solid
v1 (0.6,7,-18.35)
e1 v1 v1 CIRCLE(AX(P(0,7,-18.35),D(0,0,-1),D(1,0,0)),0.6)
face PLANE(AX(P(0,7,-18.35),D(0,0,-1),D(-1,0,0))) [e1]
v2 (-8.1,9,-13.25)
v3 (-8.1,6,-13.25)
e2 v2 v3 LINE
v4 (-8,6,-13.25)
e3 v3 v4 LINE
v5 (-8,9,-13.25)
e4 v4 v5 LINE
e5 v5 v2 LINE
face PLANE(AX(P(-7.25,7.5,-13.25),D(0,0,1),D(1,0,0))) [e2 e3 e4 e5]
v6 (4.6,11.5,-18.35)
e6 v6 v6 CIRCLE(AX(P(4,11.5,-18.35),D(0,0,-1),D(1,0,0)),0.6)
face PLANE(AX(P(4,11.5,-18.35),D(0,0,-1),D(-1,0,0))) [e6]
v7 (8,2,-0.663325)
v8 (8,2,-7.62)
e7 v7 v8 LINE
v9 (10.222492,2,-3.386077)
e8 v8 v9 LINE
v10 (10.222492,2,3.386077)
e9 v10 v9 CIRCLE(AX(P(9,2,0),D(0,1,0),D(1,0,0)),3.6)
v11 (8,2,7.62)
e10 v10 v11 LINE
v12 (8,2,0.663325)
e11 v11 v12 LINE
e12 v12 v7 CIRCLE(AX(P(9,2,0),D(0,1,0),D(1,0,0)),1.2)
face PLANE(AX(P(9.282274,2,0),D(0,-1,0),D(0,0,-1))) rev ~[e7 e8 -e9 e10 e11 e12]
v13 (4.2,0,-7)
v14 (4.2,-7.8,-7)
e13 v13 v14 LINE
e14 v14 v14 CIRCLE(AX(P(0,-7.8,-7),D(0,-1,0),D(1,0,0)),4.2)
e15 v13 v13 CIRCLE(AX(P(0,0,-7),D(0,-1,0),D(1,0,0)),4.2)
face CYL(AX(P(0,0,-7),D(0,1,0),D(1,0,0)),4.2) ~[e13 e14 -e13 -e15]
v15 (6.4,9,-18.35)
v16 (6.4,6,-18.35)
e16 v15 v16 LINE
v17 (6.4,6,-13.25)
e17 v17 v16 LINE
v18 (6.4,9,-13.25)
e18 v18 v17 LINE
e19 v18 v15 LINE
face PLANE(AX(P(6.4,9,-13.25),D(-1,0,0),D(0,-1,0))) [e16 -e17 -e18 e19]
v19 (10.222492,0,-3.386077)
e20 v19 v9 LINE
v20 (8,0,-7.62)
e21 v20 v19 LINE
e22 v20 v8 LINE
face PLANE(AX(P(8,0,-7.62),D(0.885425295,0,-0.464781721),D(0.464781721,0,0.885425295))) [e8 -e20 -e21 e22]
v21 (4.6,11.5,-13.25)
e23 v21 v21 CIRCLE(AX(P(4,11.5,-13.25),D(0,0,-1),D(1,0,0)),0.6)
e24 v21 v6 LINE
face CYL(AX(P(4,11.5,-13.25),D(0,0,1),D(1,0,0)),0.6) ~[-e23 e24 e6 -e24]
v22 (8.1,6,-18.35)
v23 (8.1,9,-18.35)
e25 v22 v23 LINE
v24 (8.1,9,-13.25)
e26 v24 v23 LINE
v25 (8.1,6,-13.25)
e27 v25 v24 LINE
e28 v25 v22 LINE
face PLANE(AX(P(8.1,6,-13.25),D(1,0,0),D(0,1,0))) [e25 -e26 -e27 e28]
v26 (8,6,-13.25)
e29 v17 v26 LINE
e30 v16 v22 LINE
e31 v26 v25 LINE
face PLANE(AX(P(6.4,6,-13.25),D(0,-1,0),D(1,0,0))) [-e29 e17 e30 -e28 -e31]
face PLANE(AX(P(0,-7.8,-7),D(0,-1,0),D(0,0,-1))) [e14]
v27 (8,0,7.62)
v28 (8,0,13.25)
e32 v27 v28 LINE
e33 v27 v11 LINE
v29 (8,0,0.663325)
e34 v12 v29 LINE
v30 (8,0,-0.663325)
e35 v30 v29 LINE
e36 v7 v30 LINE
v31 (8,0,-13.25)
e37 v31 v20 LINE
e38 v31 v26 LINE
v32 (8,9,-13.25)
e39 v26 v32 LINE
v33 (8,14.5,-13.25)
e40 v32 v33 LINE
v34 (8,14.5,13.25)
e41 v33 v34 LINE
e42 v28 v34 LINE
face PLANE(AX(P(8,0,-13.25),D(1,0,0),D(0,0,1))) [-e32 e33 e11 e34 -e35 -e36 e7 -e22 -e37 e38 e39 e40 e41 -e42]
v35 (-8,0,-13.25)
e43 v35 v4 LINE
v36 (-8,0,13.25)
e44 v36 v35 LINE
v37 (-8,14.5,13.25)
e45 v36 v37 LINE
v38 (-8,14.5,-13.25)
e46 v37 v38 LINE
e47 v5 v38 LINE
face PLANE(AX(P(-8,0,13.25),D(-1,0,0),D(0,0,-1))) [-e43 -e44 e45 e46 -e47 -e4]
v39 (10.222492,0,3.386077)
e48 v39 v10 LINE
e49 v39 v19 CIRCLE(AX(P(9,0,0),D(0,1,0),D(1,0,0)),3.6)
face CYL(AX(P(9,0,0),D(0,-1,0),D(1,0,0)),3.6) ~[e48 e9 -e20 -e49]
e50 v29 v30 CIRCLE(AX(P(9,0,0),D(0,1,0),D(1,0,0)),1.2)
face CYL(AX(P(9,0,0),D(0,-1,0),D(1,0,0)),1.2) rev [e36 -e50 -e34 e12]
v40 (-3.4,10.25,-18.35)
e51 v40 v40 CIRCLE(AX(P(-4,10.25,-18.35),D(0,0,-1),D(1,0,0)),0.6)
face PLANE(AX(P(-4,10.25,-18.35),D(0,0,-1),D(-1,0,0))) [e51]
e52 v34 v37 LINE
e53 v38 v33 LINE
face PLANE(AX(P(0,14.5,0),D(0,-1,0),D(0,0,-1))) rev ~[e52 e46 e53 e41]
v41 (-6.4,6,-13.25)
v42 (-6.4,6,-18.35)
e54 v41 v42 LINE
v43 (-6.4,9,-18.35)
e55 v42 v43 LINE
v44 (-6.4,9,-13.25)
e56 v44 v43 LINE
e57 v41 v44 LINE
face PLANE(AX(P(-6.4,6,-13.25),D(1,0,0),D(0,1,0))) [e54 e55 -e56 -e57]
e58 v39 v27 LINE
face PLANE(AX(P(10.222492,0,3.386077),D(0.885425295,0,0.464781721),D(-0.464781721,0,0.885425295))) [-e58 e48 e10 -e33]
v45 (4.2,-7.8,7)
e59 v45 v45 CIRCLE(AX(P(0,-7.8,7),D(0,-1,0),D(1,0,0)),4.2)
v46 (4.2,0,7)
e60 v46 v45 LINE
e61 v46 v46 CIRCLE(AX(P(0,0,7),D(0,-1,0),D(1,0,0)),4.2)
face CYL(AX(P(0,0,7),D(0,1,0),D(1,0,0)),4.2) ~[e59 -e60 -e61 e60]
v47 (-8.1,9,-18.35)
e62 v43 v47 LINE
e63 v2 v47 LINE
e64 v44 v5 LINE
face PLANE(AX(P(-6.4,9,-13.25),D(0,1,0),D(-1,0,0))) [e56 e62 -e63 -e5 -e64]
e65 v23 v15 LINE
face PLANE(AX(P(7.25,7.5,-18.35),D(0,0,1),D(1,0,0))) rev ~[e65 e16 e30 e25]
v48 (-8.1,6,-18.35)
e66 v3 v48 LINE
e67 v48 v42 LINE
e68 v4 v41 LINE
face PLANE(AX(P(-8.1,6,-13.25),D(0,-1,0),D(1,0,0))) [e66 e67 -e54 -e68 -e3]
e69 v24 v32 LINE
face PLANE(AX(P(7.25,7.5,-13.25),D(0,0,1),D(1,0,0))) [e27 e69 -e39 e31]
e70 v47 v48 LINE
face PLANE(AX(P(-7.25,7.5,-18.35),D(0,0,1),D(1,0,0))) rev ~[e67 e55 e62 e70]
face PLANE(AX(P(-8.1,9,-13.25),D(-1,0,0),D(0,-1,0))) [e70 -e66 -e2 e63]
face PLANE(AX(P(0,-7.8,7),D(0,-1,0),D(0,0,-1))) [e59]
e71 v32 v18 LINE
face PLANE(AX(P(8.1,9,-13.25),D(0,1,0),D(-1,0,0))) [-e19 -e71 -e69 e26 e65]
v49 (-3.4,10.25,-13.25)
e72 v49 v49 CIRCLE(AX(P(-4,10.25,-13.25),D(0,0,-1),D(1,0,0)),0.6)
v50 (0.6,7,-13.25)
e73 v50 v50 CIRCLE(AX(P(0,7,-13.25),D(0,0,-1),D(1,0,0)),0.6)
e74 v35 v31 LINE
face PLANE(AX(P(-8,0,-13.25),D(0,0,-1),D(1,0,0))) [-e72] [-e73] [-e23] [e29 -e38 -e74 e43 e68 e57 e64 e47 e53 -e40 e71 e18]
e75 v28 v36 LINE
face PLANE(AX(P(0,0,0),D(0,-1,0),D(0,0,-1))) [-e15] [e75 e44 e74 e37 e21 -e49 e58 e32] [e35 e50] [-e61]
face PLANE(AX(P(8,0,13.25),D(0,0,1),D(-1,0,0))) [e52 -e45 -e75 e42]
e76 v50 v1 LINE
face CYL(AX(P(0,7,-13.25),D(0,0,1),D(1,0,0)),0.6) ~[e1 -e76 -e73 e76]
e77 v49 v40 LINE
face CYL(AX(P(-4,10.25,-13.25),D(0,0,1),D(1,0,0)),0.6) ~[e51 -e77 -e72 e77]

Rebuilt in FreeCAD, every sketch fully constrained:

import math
import FreeCAD as App
import Part
import Sketcher
from FreeCAD import Vector
Q = App.Units.Quantity


def add_polygon(sketch, points):
    """Adds a closed chain of lines whose ends are joined by coincident constraints."""
    first, n = sketch.GeometryCount, len(points)
    for a, b in zip(points, points[1:] + points[:1]):
        sketch.addGeometry(Part.LineSegment(App.Vector(*a, 0), App.Vector(*b, 0)), False)
    for i in range(n):
        sketch.addConstraint(Sketcher.Constraint("Coincident", first + i, 2, first + (i + 1) % n, 1))

doc = App.newDocument("Part")
body = doc.addObject("PartDesign::Body", "Body")
body.AllowCompound = True

sketch1 = body.newObject("Sketcher::SketchObject", "Sketch")
sketch1.AttachmentSupport = (doc.getObject("XZ_Plane"), [""])
sketch1.MapMode = "FlatFace"
sketch1.addGeometry(Part.Circle(Vector(0, -7, 0), Vector(0, 0, 1), 4.2), False)
sketch1.addGeometry(Part.Circle(Vector(0, 7, 0), Vector(0, 0, 1), 4.2), False)
sketch1.addConstraint(Sketcher.Constraint("Equal", 0, 1))
sketch1.addConstraint(Sketcher.Constraint("Symmetric", 0, 3, 1, 3, -1, 1))
sketch1.addConstraint(Sketcher.Constraint("PointOnObject", 0, 3, -2))
sketch1.addConstraint(Sketcher.Constraint("Diameter", 0, Q("8.4 mm")))
sketch1.addConstraint(Sketcher.Constraint("DistanceY", 0, 3, -1, 1, Q("7 mm")))
pad1 = body.newObject("PartDesign::Pad", "Pad")
pad1.Profile = sketch1
pad1.Length = 7.8

sketch2 = body.newObject("Sketcher::SketchObject", "Sketch001")
sketch2.AttachmentSupport = (doc.getObject("XZ_Plane"), [""])
sketch2.MapMode = "FlatFace"
add_polygon(sketch2, [(8, -13), (-8, -13), (-8, 13), (8, 13)])
sketch2.addConstraint(Sketcher.Constraint("Horizontal", 0))
sketch2.addConstraint(Sketcher.Constraint("Vertical", 1))
sketch2.addConstraint(Sketcher.Constraint("Horizontal", 2))
sketch2.addConstraint(Sketcher.Constraint("Vertical", 3))
sketch2.addConstraint(Sketcher.Constraint("Symmetric", 0, 2, 2, 2, -1, 1))
sketch2.addConstraint(Sketcher.Constraint("DistanceX", 0, 2, 0, 1, Q("16 mm")))
sketch2.addConstraint(Sketcher.Constraint("DistanceY", 1, 1, 1, 2, Q("26.5 mm")))
pad2 = body.newObject("PartDesign::Pad", "Pad001")
pad2.Profile = sketch2
pad2.Length = 14.5
pad2.Reversed = True

sketch3 = body.newObject("Sketcher::SketchObject", "Sketch002")
sketch3.AttachmentSupport = (doc.getObject("XY_Plane"), [""])
sketch3.MapMode = "FlatFace"
sketch3.AttachmentOffset = App.Placement(Vector(0, 0, -13.25), App.Rotation())
add_polygon(sketch3, [(-6.4, 9), (-6.4, 6), (-8.1, 6), (-8.1, 9)])
sketch3.addGeometry(Part.Circle(Vector(4, 11.5, 0), Vector(0, 0, 1), 0.6), False)
sketch3.addGeometry(Part.Circle(Vector(-4, 10.2, 0), Vector(0, 0, 1), 0.6), False)
sketch3.addGeometry(Part.Circle(Vector(0, 7, 0), Vector(0, 0, 1), 0.6), False)
add_polygon(sketch3, [(8.1, 6), (6.4, 6), (6.4, 9), (8.1, 9)])
sketch3.addConstraint(Sketcher.Constraint("Vertical", 0))
sketch3.addConstraint(Sketcher.Constraint("Horizontal", 1))
sketch3.addConstraint(Sketcher.Constraint("Vertical", 2))
sketch3.addConstraint(Sketcher.Constraint("Horizontal", 3))
sketch3.addConstraint(Sketcher.Constraint("Horizontal", 7))
sketch3.addConstraint(Sketcher.Constraint("Vertical", 8))
sketch3.addConstraint(Sketcher.Constraint("Horizontal", 9))
sketch3.addConstraint(Sketcher.Constraint("Vertical", 10))
sketch3.addConstraint(Sketcher.Constraint("Equal", 4, 5))
sketch3.addConstraint(Sketcher.Constraint("Equal", 5, 6))
sketch3.addConstraint(Sketcher.Constraint("Symmetric", 0, 2, 7, 2, -2))
sketch3.addConstraint(Sketcher.Constraint("Symmetric", 2, 2, 9, 2, -2))
sketch3.addConstraint(Sketcher.Constraint("PointOnObject", 6, 3, -2))
sketch3.addConstraint(Sketcher.Constraint("Diameter", 4, Q("1.2 mm")))
sketch3.addConstraint(Sketcher.Constraint("DistanceY", 0, 2, 0, 1, Q("3 mm")))
sketch3.addConstraint(Sketcher.Constraint("DistanceX", 1, 2, 1, 1, Q("1.7 mm")))
sketch3.addConstraint(Sketcher.Constraint("DistanceX", -1, 1, 4, 3, Q("4 mm")))
sketch3.addConstraint(Sketcher.Constraint("DistanceX", 5, 3, -1, 1, Q("4 mm")))
sketch3.addConstraint(Sketcher.Constraint("DistanceY", -1, 1, 6, 3, Q("7 mm")))
sketch3.addConstraint(Sketcher.Constraint("DistanceY", -1, 1, 0, 2, Q("6 mm")))
sketch3.addConstraint(Sketcher.Constraint("DistanceY", -1, 1, 4, 3, Q("11.5 mm")))
sketch3.addConstraint(Sketcher.Constraint("DistanceX", 0, 2, -1, 1, Q("6.4 mm")))
sketch3.addConstraint(Sketcher.Constraint("DistanceY", -1, 1, 5, 3, Q("10.25 mm")))
pad3 = body.newObject("PartDesign::Pad", "Pad002")
pad3.Profile = sketch3
pad3.Length = 5.1
pad3.Reversed = True

sketch4 = body.newObject("Sketcher::SketchObject", "Sketch003")
sketch4.AttachmentSupport = (doc.getObject("XZ_Plane"), [""])
sketch4.MapMode = "FlatFace"
sketch4.addGeometry(Part.ArcOfCircle(Part.Circle(Vector(9, 0, 0), Vector(0, 0, 1), 1.2), math.radians(-146), math.radians(146)), False)
sketch4.addGeometry(Part.LineSegment(Vector(8, -0.7, 0), Vector(8, -7.6, 0)), False)
sketch4.addGeometry(Part.LineSegment(Vector(8, -7.6, 0), Vector(10.2, -3.4, 0)), False)
sketch4.addGeometry(Part.ArcOfCircle(Part.Circle(Vector(9, 0, 0), Vector(0, 0, 1), 3.6), math.radians(-70), math.radians(70)), False)
sketch4.addGeometry(Part.LineSegment(Vector(10.2, 3.4, 0), Vector(8, 7.6, 0)), False)
sketch4.addGeometry(Part.LineSegment(Vector(8, 7.6, 0), Vector(8, 0.7, 0)), False)
sketch4.addConstraint(Sketcher.Constraint("Coincident", 0, 1, 1, 1))
sketch4.addConstraint(Sketcher.Constraint("Coincident", 1, 2, 2, 1))
sketch4.addConstraint(Sketcher.Constraint("Coincident", 2, 2, 3, 1))
sketch4.addConstraint(Sketcher.Constraint("Coincident", 3, 2, 4, 1))
sketch4.addConstraint(Sketcher.Constraint("Coincident", 4, 2, 5, 1))
sketch4.addConstraint(Sketcher.Constraint("Coincident", 5, 2, 0, 2))
sketch4.addConstraint(Sketcher.Constraint("Vertical", 1))
sketch4.addConstraint(Sketcher.Constraint("Vertical", 5))
sketch4.addConstraint(Sketcher.Constraint("Coincident", 3, 3, 0, 3))
sketch4.addConstraint(Sketcher.Constraint("Symmetric", 2, 2, 3, 2, -1))
sketch4.addConstraint(Sketcher.Constraint("Symmetric", 1, 2, 4, 2, -1))
sketch4.addConstraint(Sketcher.Constraint("Radius", 0, Q("1.2 mm")))
sketch4.addConstraint(Sketcher.Constraint("Radius", 3, Q("3.6 mm")))
sketch4.addConstraint(Sketcher.Constraint("DistanceX", -1, 1, 0, 3, Q("9 mm")))
sketch4.addConstraint(Sketcher.Constraint("DistanceX", -1, 1, 0, 1, Q("8 mm")))
sketch4.addConstraint(Sketcher.Constraint("DistanceY", 1, 2, -1, 1, Q("7.62 mm")))
sketch4.addConstraint(Sketcher.Constraint("DistanceY", 2, 2, -1, 1, Q("3.386 mm")))
pad4 = body.newObject("PartDesign::Pad", "Pad003")
pad4.Profile = sketch4
pad4.Length = 2
pad4.Reversed = True

doc.recompute()
